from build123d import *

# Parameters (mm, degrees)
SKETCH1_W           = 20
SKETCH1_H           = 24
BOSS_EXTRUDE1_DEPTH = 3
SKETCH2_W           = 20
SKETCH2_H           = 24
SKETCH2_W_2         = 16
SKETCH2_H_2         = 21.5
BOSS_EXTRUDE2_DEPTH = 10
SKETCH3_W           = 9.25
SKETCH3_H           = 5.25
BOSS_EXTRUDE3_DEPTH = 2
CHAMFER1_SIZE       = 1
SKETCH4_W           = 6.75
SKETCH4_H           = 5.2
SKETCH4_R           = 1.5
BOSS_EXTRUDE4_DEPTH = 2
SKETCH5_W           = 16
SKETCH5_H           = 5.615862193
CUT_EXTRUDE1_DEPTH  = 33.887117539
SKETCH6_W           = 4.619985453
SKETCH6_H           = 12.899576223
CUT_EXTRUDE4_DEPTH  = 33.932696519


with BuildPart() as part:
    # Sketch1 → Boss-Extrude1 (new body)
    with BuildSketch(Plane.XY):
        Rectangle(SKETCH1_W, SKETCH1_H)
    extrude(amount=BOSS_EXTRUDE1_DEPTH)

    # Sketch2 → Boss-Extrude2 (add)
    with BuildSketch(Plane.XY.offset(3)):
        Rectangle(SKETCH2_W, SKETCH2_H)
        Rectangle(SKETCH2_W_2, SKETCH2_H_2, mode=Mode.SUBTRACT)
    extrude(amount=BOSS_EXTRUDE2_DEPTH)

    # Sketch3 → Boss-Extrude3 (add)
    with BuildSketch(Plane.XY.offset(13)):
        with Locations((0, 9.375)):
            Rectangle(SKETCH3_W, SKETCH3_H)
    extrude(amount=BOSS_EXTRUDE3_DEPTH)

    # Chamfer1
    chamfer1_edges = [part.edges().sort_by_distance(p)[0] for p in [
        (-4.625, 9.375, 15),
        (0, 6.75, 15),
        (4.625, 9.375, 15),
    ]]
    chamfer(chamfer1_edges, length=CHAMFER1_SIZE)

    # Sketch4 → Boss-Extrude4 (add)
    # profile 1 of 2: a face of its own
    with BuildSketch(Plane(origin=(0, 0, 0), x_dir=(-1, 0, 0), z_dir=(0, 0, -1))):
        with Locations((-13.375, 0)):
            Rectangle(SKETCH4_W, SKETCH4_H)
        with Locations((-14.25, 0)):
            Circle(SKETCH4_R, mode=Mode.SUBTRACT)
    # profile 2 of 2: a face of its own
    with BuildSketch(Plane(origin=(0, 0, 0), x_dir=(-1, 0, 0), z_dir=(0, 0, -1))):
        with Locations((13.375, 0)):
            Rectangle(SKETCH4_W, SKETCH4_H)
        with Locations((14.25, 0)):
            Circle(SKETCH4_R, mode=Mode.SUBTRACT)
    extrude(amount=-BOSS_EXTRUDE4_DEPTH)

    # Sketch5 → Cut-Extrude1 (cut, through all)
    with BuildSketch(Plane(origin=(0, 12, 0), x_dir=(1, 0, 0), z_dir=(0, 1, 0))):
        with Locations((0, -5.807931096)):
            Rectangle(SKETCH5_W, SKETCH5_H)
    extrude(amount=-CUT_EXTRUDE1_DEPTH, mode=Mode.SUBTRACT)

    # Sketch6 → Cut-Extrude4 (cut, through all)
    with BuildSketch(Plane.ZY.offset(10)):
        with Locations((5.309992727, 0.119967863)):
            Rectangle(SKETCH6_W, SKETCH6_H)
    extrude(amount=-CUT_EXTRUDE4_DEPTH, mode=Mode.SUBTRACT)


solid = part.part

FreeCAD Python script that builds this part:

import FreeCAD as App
import Part
import Sketcher

V = App.Vector
Q = App.Units.Quantity


def edges_at(feature, points):
    """Names of the edges that pass closest to the given points."""
    edges = feature.Shape.Edges
    near = lambda p: min(range(len(edges)), key=lambda i: edges[i].distToShape(Part.Vertex(*p))[0])
    return sorted({f"Edge{near(p) + 1}" for p in points})

doc = App.newDocument("Part")
body = doc.addObject("PartDesign::Body", "Body")

# Sketch on XY plane
sketch1 = doc.addObject("Sketcher::SketchObject", "Sketch")
body.addObject(sketch1)
sketch1.AttachmentSupport = (doc.XY_Plane, [""])
sketch1.MapMode = "FlatFace"
sketch1.addGeometry([
    Part.LineSegment(V(-10, 12, 0), V(-10, -12, 0)),
    Part.LineSegment(V(-10, -12, 0), V(10, -12, 0)),
    Part.LineSegment(V(10, -12, 0), V(10, 12, 0)),
    Part.LineSegment(V(10, 12, 0), V(-10, 12, 0)),
], False)
sketch1.addConstraint([
    Sketcher.Constraint("Coincident", 0, 2, 1, 1),
    Sketcher.Constraint("Coincident", 1, 2, 2, 1),
    Sketcher.Constraint("Coincident", 2, 2, 3, 1),
    Sketcher.Constraint("Coincident", 3, 2, 0, 1),
    Sketcher.Constraint("Vertical", 0),
    Sketcher.Constraint("Horizontal", 1),
    Sketcher.Constraint("Vertical", 2),
    Sketcher.Constraint("Horizontal", 3),
    Sketcher.Constraint("Symmetric", 0, 2, 2, 2, -1, 1),
    Sketcher.Constraint("DistanceX", 1, 1, 1, 2, Q("20 mm")),
    Sketcher.Constraint("DistanceY", 0, 2, 0, 1, Q("24 mm")),
])
pad1 = doc.addObject("PartDesign::Pad", "Pad")
body.addObject(pad1)
pad1.Profile = sketch1
pad1.Length = 3

# Sketch on XY plane
sketch2 = doc.addObject("Sketcher::SketchObject", "Sketch001")
body.addObject(sketch2)
sketch2.AttachmentSupport = (doc.XY_Plane, [""])
sketch2.MapMode = "FlatFace"
sketch2.AttachmentOffset = App.Placement(V(0, 0, 3), App.Rotation())
sketch2.addGeometry([
    Part.LineSegment(V(-10, 12, 0), V(-10, -12, 0)),  # 0
    Part.LineSegment(V(-10, -12, 0), V(10, -12, 0)),  # 1
    Part.LineSegment(V(10, -12, 0), V(10, 12, 0)),  # 2
    Part.LineSegment(V(10, 12, 0), V(-10, 12, 0)),  # 3
    Part.LineSegment(V(8, -10.75, 0), V(-8, -10.75, 0)),  # 4
    Part.LineSegment(V(-8, -10.75, 0), V(-8, 10.75, 0)),  # 5
    Part.LineSegment(V(-8, 10.75, 0), V(8, 10.75, 0)),  # 6
    Part.LineSegment(V(8, 10.75, 0), V(8, -10.75, 0)),  # 7
], False)
sketch2.addConstraint([
    Sketcher.Constraint("Coincident", 0, 2, 1, 1),
    Sketcher.Constraint("Coincident", 1, 2, 2, 1),
    Sketcher.Constraint("Coincident", 2, 2, 3, 1),
    Sketcher.Constraint("Coincident", 3, 2, 0, 1),
    Sketcher.Constraint("Coincident", 4, 2, 5, 1),
    Sketcher.Constraint("Coincident", 5, 2, 6, 1),
    Sketcher.Constraint("Coincident", 6, 2, 7, 1),
    Sketcher.Constraint("Coincident", 7, 2, 4, 1),
    Sketcher.Constraint("Vertical", 0),
    Sketcher.Constraint("Horizontal", 1),
    Sketcher.Constraint("Vertical", 2),
    Sketcher.Constraint("Horizontal", 3),
    Sketcher.Constraint("Horizontal", 4),
    Sketcher.Constraint("Vertical", 5),
    Sketcher.Constraint("Horizontal", 6),
    Sketcher.Constraint("Vertical", 7),
    Sketcher.Constraint("Symmetric", 0, 2, 2, 2, -1, 1),
    Sketcher.Constraint("Symmetric", 4, 2, 6, 2, -1, 1),
    Sketcher.Constraint("DistanceX", 1, 1, 1, 2, Q("20 mm")),
    Sketcher.Constraint("DistanceX", 4, 2, 4, 1, Q("16 mm")),
    Sketcher.Constraint("DistanceY", 0, 2, 0, 1, Q("24 mm")),
    Sketcher.Constraint("DistanceY", 5, 1, 5, 2, Q("21.5 mm")),
])
pad2 = doc.addObject("PartDesign::Pad", "Pad001")
body.addObject(pad2)
pad2.Profile = sketch2
pad2.Length = 10

# Sketch on XY plane
sketch3 = doc.addObject("Sketcher::SketchObject", "Sketch002")
body.addObject(sketch3)
sketch3.AttachmentSupport = (doc.XY_Plane, [""])
sketch3.MapMode = "FlatFace"
sketch3.AttachmentOffset = App.Placement(V(0, 0, 13), App.Rotation())
sketch3.addGeometry([
    Part.LineSegment(V(-4.625, 12, 0), V(-4.625, 6.75, 0)),
    Part.LineSegment(V(-4.625, 6.75, 0), V(4.625, 6.75, 0)),
    Part.LineSegment(V(4.625, 6.75, 0), V(4.625, 12, 0)),
    Part.LineSegment(V(4.625, 12, 0), V(-4.625, 12, 0)),
], False)
sketch3.addConstraint([
    Sketcher.Constraint("Coincident", 0, 2, 1, 1),
    Sketcher.Constraint("Coincident", 1, 2, 2, 1),
    Sketcher.Constraint("Coincident", 2, 2, 3, 1),
    Sketcher.Constraint("Coincident", 3, 2, 0, 1),
    Sketcher.Constraint("Vertical", 0),
    Sketcher.Constraint("Horizontal", 1),
    Sketcher.Constraint("Vertical", 2),
    Sketcher.Constraint("Horizontal", 3),
    Sketcher.Constraint("DistanceY", -1, 1, 2, 2, Q("12 mm")),
    Sketcher.Constraint("DistanceX", 1, 1, 1, 2, Q("9.25 mm")),
    Sketcher.Constraint("DistanceY", 0, 2, 0, 1, Q("5.25 mm")),
    Sketcher.Constraint("DistanceX", 0, 2, -1, 1, Q("4.625 mm")),
])
pad3 = doc.addObject("PartDesign::Pad", "Pad002")
body.addObject(pad3)
pad3.Profile = sketch3
pad3.Length = 2
doc.recompute()

chamfer = doc.addObject("PartDesign::Chamfer", "Chamfer")
body.addObject(chamfer)
chamfer.Base = (pad3, edges_at(pad3, [(-4.625, 9.375, 15), (0, 6.75, 15), (4.625, 9.375, 15)]))
chamfer.Size = 1

# Sketch on XY plane
sketch4 = doc.addObject("Sketcher::SketchObject", "Sketch003")
body.addObject(sketch4)
sketch4.AttachmentSupport = (doc.XY_Plane, [""])
sketch4.MapMode = "FlatFace"
sketch4.addGeometry([
    Part.LineSegment(V(16.75, 2.6, 0), V(16.75, -2.6, 0)),  # 0
    Part.LineSegment(V(16.75, -2.6, 0), V(10, -2.6, 0)),  # 1
    Part.LineSegment(V(10, -2.6, 0), V(10, 2.6, 0)),  # 2
    Part.LineSegment(V(10, 2.6, 0), V(16.75, 2.6, 0)),  # 3
    Part.Circle(V(14.25, 0, 0), V(0, 0, 1), 1.5),  # 4
    Part.LineSegment(V(-10, 2.6, 0), V(-10, -2.6, 0)),  # 5
    Part.LineSegment(V(-10, -2.6, 0), V(-16.75, -2.6, 0)),  # 6
    Part.LineSegment(V(-16.75, -2.6, 0), V(-16.75, 2.6, 0)),  # 7
    Part.LineSegment(V(-16.75, 2.6, 0), V(-10, 2.6, 0)),  # 8
    Part.Circle(V(-14.25, 0, 0), V(0, 0, 1), 1.5),  # 9
], False)
sketch4.addConstraint([
    Sketcher.Constraint("Coincident", 0, 2, 1, 1),
    Sketcher.Constraint("Coincident", 1, 2, 2, 1),
    Sketcher.Constraint("Coincident", 2, 2, 3, 1),
    Sketcher.Constraint("Coincident", 3, 2, 0, 1),
    Sketcher.Constraint("Coincident", 5, 2, 6, 1),
    Sketcher.Constraint("Coincident", 6, 2, 7, 1),
    Sketcher.Constraint("Coincident", 7, 2, 8, 1),
    Sketcher.Constraint("Coincident", 8, 2, 5, 1),
    Sketcher.Constraint("Vertical", 0),
    Sketcher.Constraint("Horizontal", 1),
    Sketcher.Constraint("Vertical", 2),
    Sketcher.Constraint("Horizontal", 3),
    Sketcher.Constraint("Vertical", 5),
    Sketcher.Constraint("Horizontal", 6),
    Sketcher.Constraint("Vertical", 7),
    Sketcher.Constraint("Horizontal", 8),
    Sketcher.Constraint("Equal", 4, 9),
    Sketcher.Constraint("Symmetric", 4, 3, 9, 3, -1, 1),
    Sketcher.Constraint("Symmetric", 2, 2, 5, 2, -1, 1),
    Sketcher.Constraint("Symmetric", 0, 2, 7, 2, -1, 1),
    Sketcher.Constraint("PointOnObject", 4, 3, -1),
    Sketcher.Constraint("Horizontal", 1, 2, 5, 2),
    Sketcher.Constraint("Diameter", 4, Q("3 mm")),
    Sketcher.Constraint("DistanceY", 0, 2, 0, 1, Q("5.2 mm")),
    Sketcher.Constraint("DistanceX", -1, 1, 1, 2, Q("10 mm")),
    Sketcher.Constraint("DistanceX", 9, 3, 0, 2, Q("31 mm")),
    Sketcher.Constraint("DistanceX", 1, 2, 1, 1, Q("6.75 mm")),
])
pad4 = doc.addObject("PartDesign::Pad", "Pad003")
body.addObject(pad4)
pad4.Profile = sketch4
pad4.Length = 2

# Sketch on XZ plane
sketch5 = doc.addObject("Sketcher::SketchObject", "Sketch004")
body.addObject(sketch5)
sketch5.AttachmentSupport = (doc.XZ_Plane, [""])
sketch5.MapMode = "FlatFace"
sketch5.AttachmentOffset = App.Placement(V(0, 0, -12), App.Rotation())
sketch5.addGeometry([
    Part.LineSegment(V(-8, 3, 0), V(-8, 8.615862, 0)),
    Part.LineSegment(V(-8, 8.615862, 0), V(8, 8.615862, 0)),
    Part.LineSegment(V(8, 8.615862, 0), V(8, 3, 0)),
    Part.LineSegment(V(8, 3, 0), V(-8, 3, 0)),
], False)
sketch5.addConstraint([
    Sketcher.Constraint("Coincident", 0, 2, 1, 1),
    Sketcher.Constraint("Coincident", 1, 2, 2, 1),
    Sketcher.Constraint("Coincident", 2, 2, 3, 1),
    Sketcher.Constraint("Coincident", 3, 2, 0, 1),
    Sketcher.Constraint("Vertical", 0),
    Sketcher.Constraint("Horizontal", 1),
    Sketcher.Constraint("Vertical", 2),
    Sketcher.Constraint("Horizontal", 3),
    Sketcher.Constraint("DistanceX", 1, 1, 1, 2, Q("16 mm")),
    Sketcher.Constraint("DistanceX", 0, 2, -1, 1, Q("8 mm")),
    Sketcher.Constraint("DistanceY", -1, 1, 2, 2, Q("3 mm")),
    Sketcher.Constraint("DistanceY", 0, 1, 0, 2, Q("5.615862 mm")),
])
pocket1 = doc.addObject("PartDesign::Pocket", "Pocket")
body.addObject(pocket1)
pocket1.Profile = sketch5
pocket1.Type = "ThroughAll"
pocket1.Reversed = True

# Sketch on YZ plane
sketch6 = doc.addObject("Sketcher::SketchObject", "Sketch005")
body.addObject(sketch6)
sketch6.AttachmentSupport = (doc.YZ_Plane, [""])
sketch6.MapMode = "FlatFace"
sketch6.AttachmentOffset = App.Placement(V(0, 0, -10), App.Rotation())
sketch6.addGeometry([
    Part.LineSegment(V(6.569756, 3, 0), V(-6.32982, 3, 0)),
    Part.LineSegment(V(-6.32982, 3, 0), V(-6.32982, 7.619985, 0)),
    Part.LineSegment(V(-6.32982, 7.619985, 0), V(6.569756, 7.619985, 0)),
    Part.LineSegment(V(6.569756, 7.619985, 0), V(6.569756, 3, 0)),
], False)
sketch6.addConstraint([
    Sketcher.Constraint("Coincident", 0, 2, 1, 1),
    Sketcher.Constraint("Coincident", 1, 2, 2, 1),
    Sketcher.Constraint("Coincident", 2, 2, 3, 1),
    Sketcher.Constraint("Coincident", 3, 2, 0, 1),
    Sketcher.Constraint("Horizontal", 0),
    Sketcher.Constraint("Vertical", 1),
    Sketcher.Constraint("Horizontal", 2),
    Sketcher.Constraint("Vertical", 3),
    Sketcher.Constraint("DistanceY", -1, 1, 0, 2, Q("3 mm")),
    Sketcher.Constraint("DistanceX", 0, 2, 0, 1, Q("12.899576 mm")),
    Sketcher.Constraint("DistanceY", 1, 1, 1, 2, Q("4.619985 mm")),
    Sketcher.Constraint("DistanceX", 0, 2, -1, 1, Q("6.32982 mm")),
])
pocket2 = doc.addObject("PartDesign::Pocket", "Pocket001")
body.addObject(pocket2)
pocket2.Profile = sketch6
pocket2.Type = "ThroughAll"
pocket2.Reversed = True

doc.recompute()
